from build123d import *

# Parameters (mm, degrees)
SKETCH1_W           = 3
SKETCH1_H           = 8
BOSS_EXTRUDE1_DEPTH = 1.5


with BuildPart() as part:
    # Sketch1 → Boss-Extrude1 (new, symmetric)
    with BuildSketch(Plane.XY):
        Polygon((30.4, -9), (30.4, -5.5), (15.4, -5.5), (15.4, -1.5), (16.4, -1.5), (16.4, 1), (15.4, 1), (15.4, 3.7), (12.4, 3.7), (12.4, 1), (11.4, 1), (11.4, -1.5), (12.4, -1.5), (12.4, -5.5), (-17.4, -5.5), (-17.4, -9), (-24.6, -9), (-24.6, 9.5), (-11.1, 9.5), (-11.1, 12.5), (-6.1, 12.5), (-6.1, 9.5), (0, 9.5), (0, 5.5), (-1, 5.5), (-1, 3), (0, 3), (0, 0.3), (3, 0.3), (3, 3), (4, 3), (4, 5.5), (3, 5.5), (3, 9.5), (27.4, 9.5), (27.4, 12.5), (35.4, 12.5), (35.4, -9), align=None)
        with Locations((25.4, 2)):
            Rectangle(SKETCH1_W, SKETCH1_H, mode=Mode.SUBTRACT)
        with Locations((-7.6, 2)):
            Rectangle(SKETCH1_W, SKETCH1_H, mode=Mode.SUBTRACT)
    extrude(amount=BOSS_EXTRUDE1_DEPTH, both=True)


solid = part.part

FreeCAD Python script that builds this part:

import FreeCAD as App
import Part
import Sketcher

doc = App.newDocument("Part")
body = doc.addObject("PartDesign::Body", "Body")

# Sketch on XY plane
sketch1 = body.newObject("Sketcher::SketchObject", "Sketch")
sketch1.AttachmentSupport = (doc.getObject("XY_Plane"), [""])
sketch1.MapMode = "FlatFace"
sketch1.addGeometry(Part.LineSegment(App.Vector(30.4, -5.5, 0), App.Vector(30.4, -9, 0)), False)
sketch1.addGeometry(Part.LineSegment(App.Vector(30.4, -9, 0), App.Vector(35.4, -9, 0)), False)
sketch1.addGeometry(Part.LineSegment(App.Vector(35.4, -9, 0), App.Vector(35.4, 12.5, 0)), False)
sketch1.addGeometry(Part.LineSegment(App.Vector(35.4, 12.5, 0), App.Vector(27.4, 12.5, 0)), False)
sketch1.addGeometry(Part.LineSegment(App.Vector(27.4, 12.5, 0), App.Vector(27.4, 9.5, 0)), False)
sketch1.addGeometry(Part.LineSegment(App.Vector(27.4, 9.5, 0), App.Vector(3, 9.5, 0)), False)
sketch1.addGeometry(Part.LineSegment(App.Vector(3, 9.5, 0), App.Vector(3, 5.5, 0)), False)
sketch1.addGeometry(Part.LineSegment(App.Vector(3, 5.5, 0), App.Vector(4, 5.5, 0)), False)
sketch1.addGeometry(Part.LineSegment(App.Vector(4, 5.5, 0), App.Vector(4, 3, 0)), False)
sketch1.addGeometry(Part.LineSegment(App.Vector(4, 3, 0), App.Vector(3, 3, 0)), False)
sketch1.addGeometry(Part.LineSegment(App.Vector(3, 3, 0), App.Vector(3, 0.3, 0)), False)
sketch1.addGeometry(Part.LineSegment(App.Vector(3, 0.3, 0), App.Vector(0, 0.3, 0)), False)
sketch1.addGeometry(Part.LineSegment(App.Vector(0, 0.3, 0), App.Vector(0, 3, 0)), False)
sketch1.addGeometry(Part.LineSegment(App.Vector(0, 3, 0), App.Vector(-1, 3, 0)), False)
sketch1.addGeometry(Part.LineSegment(App.Vector(-1, 3, 0), App.Vector(-1, 5.5, 0)), False)
sketch1.addGeometry(Part.LineSegment(App.Vector(-1, 5.5, 0), App.Vector(0, 5.5, 0)), False)
sketch1.addGeometry(Part.LineSegment(App.Vector(0, 5.5, 0), App.Vector(0, 9.5, 0)), False)
sketch1.addGeometry(Part.LineSegment(App.Vector(0, 9.5, 0), App.Vector(-6.1, 9.5, 0)), False)
sketch1.addGeometry(Part.LineSegment(App.Vector(-6.1, 9.5, 0), App.Vector(-6.1, 12.5, 0)), False)
sketch1.addGeometry(Part.LineSegment(App.Vector(-6.1, 12.5, 0), App.Vector(-11.1, 12.5, 0)), False)
sketch1.addGeometry(Part.LineSegment(App.Vector(-11.1, 12.5, 0), App.Vector(-11.1, 9.5, 0)), False)
sketch1.addGeometry(Part.LineSegment(App.Vector(-11.1, 9.5, 0), App.Vector(-24.6, 9.5, 0)), False)
sketch1.addGeometry(Part.LineSegment(App.Vector(-24.6, 9.5, 0), App.Vector(-24.6, -9, 0)), False)
sketch1.addGeometry(Part.LineSegment(App.Vector(-24.6, -9, 0), App.Vector(-17.4, -9, 0)), False)
sketch1.addGeometry(Part.LineSegment(App.Vector(-17.4, -9, 0), App.Vector(-17.4, -5.5, 0)), False)
sketch1.addGeometry(Part.LineSegment(App.Vector(-17.4, -5.5, 0), App.Vector(12.4, -5.5, 0)), False)
sketch1.addGeometry(Part.LineSegment(App.Vector(12.4, -5.5, 0), App.Vector(12.4, -1.5, 0)), False)
sketch1.addGeometry(Part.LineSegment(App.Vector(12.4, -1.5, 0), App.Vector(11.4, -1.5, 0)), False)
sketch1.addGeometry(Part.LineSegment(App.Vector(11.4, -1.5, 0), App.Vector(11.4, 1, 0)), False)
sketch1.addGeometry(Part.LineSegment(App.Vector(11.4, 1, 0), App.Vector(12.4, 1, 0)), False)
sketch1.addGeometry(Part.LineSegment(App.Vector(12.4, 1, 0), App.Vector(12.4, 3.7, 0)), False)
sketch1.addGeometry(Part.LineSegment(App.Vector(12.4, 3.7, 0), App.Vector(15.4, 3.7, 0)), False)
sketch1.addGeometry(Part.LineSegment(App.Vector(15.4, 3.7, 0), App.Vector(15.4, 1, 0)), False)
sketch1.addGeometry(Part.LineSegment(App.Vector(15.4, 1, 0), App.Vector(16.4, 1, 0)), False)
sketch1.addGeometry(Part.LineSegment(App.Vector(16.4, 1, 0), App.Vector(16.4, -1.5, 0)), False)
sketch1.addGeometry(Part.LineSegment(App.Vector(16.4, -1.5, 0), App.Vector(15.4, -1.5, 0)), False)
sketch1.addGeometry(Part.LineSegment(App.Vector(15.4, -1.5, 0), App.Vector(15.4, -5.5, 0)), False)
sketch1.addGeometry(Part.LineSegment(App.Vector(15.4, -5.5, 0), App.Vector(30.4, -5.5, 0)), False)
sketch1.addGeometry(Part.LineSegment(App.Vector(23.9, -2, 0), App.Vector(23.9, 6, 0)), False)
sketch1.addGeometry(Part.LineSegment(App.Vector(23.9, 6, 0), App.Vector(26.9, 6, 0)), False)
sketch1.addGeometry(Part.LineSegment(App.Vector(26.9, 6, 0), App.Vector(26.9, -2, 0)), False)
sketch1.addGeometry(Part.LineSegment(App.Vector(26.9, -2, 0), App.Vector(23.9, -2, 0)), False)
sketch1.addGeometry(Part.LineSegment(App.Vector(-9.1, -2, 0), App.Vector(-9.1, 6, 0)), False)
sketch1.addGeometry(Part.LineSegment(App.Vector(-9.1, 6, 0), App.Vector(-6.1, 6, 0)), False)
sketch1.addGeometry(Part.LineSegment(App.Vector(-6.1, 6, 0), App.Vector(-6.1, -2, 0)), False)
sketch1.addGeometry(Part.LineSegment(App.Vector(-6.1, -2, 0), App.Vector(-9.1, -2, 0)), False)
sketch1.addConstraint(Sketcher.Constraint("Coincident", 0, 2, 1, 1))
sketch1.addConstraint(Sketcher.Constraint("Coincident", 1, 2, 2, 1))
sketch1.addConstraint(Sketcher.Constraint("Coincident", 2, 2, 3, 1))
sketch1.addConstraint(Sketcher.Constraint("Coincident", 3, 2, 4, 1))
sketch1.addConstraint(Sketcher.Constraint("Coincident", 4, 2, 5, 1))
sketch1.addConstraint(Sketcher.Constraint("Coincident", 5, 2, 6, 1))
sketch1.addConstraint(Sketcher.Constraint("Coincident", 6, 2, 7, 1))
sketch1.addConstraint(Sketcher.Constraint("Coincident", 7, 2, 8, 1))
sketch1.addConstraint(Sketcher.Constraint("Coincident", 8, 2, 9, 1))
sketch1.addConstraint(Sketcher.Constraint("Coincident", 9, 2, 10, 1))
sketch1.addConstraint(Sketcher.Constraint("Coincident", 10, 2, 11, 1))
sketch1.addConstraint(Sketcher.Constraint("Coincident", 11, 2, 12, 1))
sketch1.addConstraint(Sketcher.Constraint("Coincident", 12, 2, 13, 1))
sketch1.addConstraint(Sketcher.Constraint("Coincident", 13, 2, 14, 1))
sketch1.addConstraint(Sketcher.Constraint("Coincident", 14, 2, 15, 1))
sketch1.addConstraint(Sketcher.Constraint("Coincident", 15, 2, 16, 1))
sketch1.addConstraint(Sketcher.Constraint("Coincident", 16, 2, 17, 1))
sketch1.addConstraint(Sketcher.Constraint("Coincident", 17, 2, 18, 1))
sketch1.addConstraint(Sketcher.Constraint("Coincident", 18, 2, 19, 1))
sketch1.addConstraint(Sketcher.Constraint("Coincident", 19, 2, 20, 1))
sketch1.addConstraint(Sketcher.Constraint("Coincident", 20, 2, 21, 1))
sketch1.addConstraint(Sketcher.Constraint("Coincident", 21, 2, 22, 1))
sketch1.addConstraint(Sketcher.Constraint("Coincident", 22, 2, 23, 1))
sketch1.addConstraint(Sketcher.Constraint("Coincident", 23, 2, 24, 1))
sketch1.addConstraint(Sketcher.Constraint("Coincident", 24, 2, 25, 1))
sketch1.addConstraint(Sketcher.Constraint("Coincident", 25, 2, 26, 1))
sketch1.addConstraint(Sketcher.Constraint("Coincident", 26, 2, 27, 1))
sketch1.addConstraint(Sketcher.Constraint("Coincident", 27, 2, 28, 1))
sketch1.addConstraint(Sketcher.Constraint("Coincident", 28, 2, 29, 1))
sketch1.addConstraint(Sketcher.Constraint("Coincident", 29, 2, 30, 1))
sketch1.addConstraint(Sketcher.Constraint("Coincident", 30, 2, 31, 1))
sketch1.addConstraint(Sketcher.Constraint("Coincident", 31, 2, 32, 1))
sketch1.addConstraint(Sketcher.Constraint("Coincident", 32, 2, 33, 1))
sketch1.addConstraint(Sketcher.Constraint("Coincident", 33, 2, 34, 1))
sketch1.addConstraint(Sketcher.Constraint("Coincident", 34, 2, 35, 1))
sketch1.addConstraint(Sketcher.Constraint("Coincident", 35, 2, 36, 1))
sketch1.addConstraint(Sketcher.Constraint("Coincident", 36, 2, 37, 1))
sketch1.addConstraint(Sketcher.Constraint("Coincident", 37, 2, 0, 1))
sketch1.addConstraint(Sketcher.Constraint("Coincident", 38, 2, 39, 1))
sketch1.addConstraint(Sketcher.Constraint("Coincident", 39, 2, 40, 1))
sketch1.addConstraint(Sketcher.Constraint("Coincident", 40, 2, 41, 1))
sketch1.addConstraint(Sketcher.Constraint("Coincident", 41, 2, 38, 1))
sketch1.addConstraint(Sketcher.Constraint("Coincident", 42, 2, 43, 1))
sketch1.addConstraint(Sketcher.Constraint("Coincident", 43, 2, 44, 1))
sketch1.addConstraint(Sketcher.Constraint("Coincident", 44, 2, 45, 1))
sketch1.addConstraint(Sketcher.Constraint("Coincident", 45, 2, 42, 1))
sketch1.addConstraint(Sketcher.Constraint("Vertical", 0))
sketch1.addConstraint(Sketcher.Constraint("Horizontal", 1))
sketch1.addConstraint(Sketcher.Constraint("Vertical", 2))
sketch1.addConstraint(Sketcher.Constraint("Horizontal", 3))
sketch1.addConstraint(Sketcher.Constraint("Vertical", 4))
sketch1.addConstraint(Sketcher.Constraint("Horizontal", 5))
sketch1.addConstraint(Sketcher.Constraint("Vertical", 6))
sketch1.addConstraint(Sketcher.Constraint("Horizontal", 7))
sketch1.addConstraint(Sketcher.Constraint("Vertical", 8))
sketch1.addConstraint(Sketcher.Constraint("Horizontal", 9))
sketch1.addConstraint(Sketcher.Constraint("Vertical", 10))
sketch1.addConstraint(Sketcher.Constraint("Horizontal", 11))
sketch1.addConstraint(Sketcher.Constraint("Vertical", 12))
sketch1.addConstraint(Sketcher.Constraint("Horizontal", 13))
sketch1.addConstraint(Sketcher.Constraint("Vertical", 14))
sketch1.addConstraint(Sketcher.Constraint("Horizontal", 15))
sketch1.addConstraint(Sketcher.Constraint("Vertical", 16))
sketch1.addConstraint(Sketcher.Constraint("Horizontal", 17))
sketch1.addConstraint(Sketcher.Constraint("Vertical", 18))
sketch1.addConstraint(Sketcher.Constraint("Horizontal", 19))
sketch1.addConstraint(Sketcher.Constraint("Vertical", 20))
sketch1.addConstraint(Sketcher.Constraint("Horizontal", 21))
sketch1.addConstraint(Sketcher.Constraint("Vertical", 22))
sketch1.addConstraint(Sketcher.Constraint("Horizontal", 23))
sketch1.addConstraint(Sketcher.Constraint("Vertical", 24))
sketch1.addConstraint(Sketcher.Constraint("Horizontal", 25))
sketch1.addConstraint(Sketcher.Constraint("Vertical", 26))
sketch1.addConstraint(Sketcher.Constraint("Horizontal", 27))
sketch1.addConstraint(Sketcher.Constraint("Vertical", 28))
sketch1.addConstraint(Sketcher.Constraint("Horizontal", 29))
sketch1.addConstraint(Sketcher.Constraint("Vertical", 30))
sketch1.addConstraint(Sketcher.Constraint("Horizontal", 31))
sketch1.addConstraint(Sketcher.Constraint("Vertical", 32))
sketch1.addConstraint(Sketcher.Constraint("Horizontal", 33))
sketch1.addConstraint(Sketcher.Constraint("Vertical", 34))
sketch1.addConstraint(Sketcher.Constraint("Horizontal", 35))
sketch1.addConstraint(Sketcher.Constraint("Vertical", 36))
sketch1.addConstraint(Sketcher.Constraint("Horizontal", 37))
sketch1.addConstraint(Sketcher.Constraint("Vertical", 38))
sketch1.addConstraint(Sketcher.Constraint("Horizontal", 39))
sketch1.addConstraint(Sketcher.Constraint("Vertical", 40))
sketch1.addConstraint(Sketcher.Constraint("Horizontal", 41))
sketch1.addConstraint(Sketcher.Constraint("Vertical", 42))
sketch1.addConstraint(Sketcher.Constraint("Horizontal", 43))
sketch1.addConstraint(Sketcher.Constraint("Vertical", 44))
sketch1.addConstraint(Sketcher.Constraint("Horizontal", 45))
sketch1.addConstraint(Sketcher.Constraint("PointOnObject", 11, 2, -2))
sketch1.addConstraint(Sketcher.Constraint("PointOnObject", 15, 2, -2))
sketch1.addConstraint(Sketcher.Constraint("Horizontal", 9, 2, 12, 2))
sketch1.addConstraint(Sketcher.Constraint("Horizontal", 7, 2, 14, 2))
sketch1.addConstraint(Sketcher.Constraint("Horizontal", 5, 2, 16, 2))
sketch1.addConstraint(Sketcher.Constraint("Horizontal", 3, 2, 18, 2))
sketch1.addConstraint(Sketcher.Constraint("Horizontal", 17, 2, 20, 2))
sketch1.addConstraint(Sketcher.Constraint("Horizontal", 1, 2, 22, 2))
sketch1.addConstraint(Sketcher.Constraint("Horizontal", 29, 2, 32, 2))
sketch1.addConstraint(Sketcher.Constraint("Horizontal", 27, 2, 34, 2))
sketch1.addConstraint(Sketcher.Constraint("Horizontal", 25, 2, 36, 2))
sketch1.addConstraint(Sketcher.Constraint("Horizontal", 39, 2, 42, 2))
sketch1.addConstraint(Sketcher.Constraint("Horizontal", 41, 2, 44, 2))
sketch1.addConstraint(Sketcher.Constraint("Vertical", 6, 2, 9, 2))
sketch1.addConstraint(Sketcher.Constraint("Vertical", 26, 2, 29, 2))
sketch1.addConstraint(Sketcher.Constraint("Vertical", 32, 2, 35, 2))
sketch1.addConstraint(Sketcher.Constraint("Vertical", 18, 2, 43, 2))
sketch1.addConstraint(Sketcher.Constraint("Equal", 9, 13))
sketch1.addConstraint(Sketcher.Constraint("Equal", 1, 19))
sketch1.addConstraint(Sketcher.Constraint("Equal", 15, 27))
sketch1.addConstraint(Sketcher.Constraint("Equal", 11, 31))
sketch1.addConstraint(Sketcher.Constraint("Equal", 29, 33))
sketch1.addConstraint(Sketcher.Constraint("Equal", 31, 39))
sketch1.addConstraint(Sketcher.Constraint("Equal", 41, 43))
sketch1.addConstraint(Sketcher.Constraint("Equal", 45, 4))
sketch1.addConstraint(Sketcher.Constraint("Equal", 16, 26))
sketch1.addConstraint(Sketcher.Constraint("Equal", 14, 28))
sketch1.addConstraint(Sketcher.Constraint("Equal", 12, 30))
sketch1.addConstraint(Sketcher.Constraint("Equal", 3, 38))
sketch1.addConstraint(Sketcher.Constraint("DistanceX", 1, 1, 1, 2, 5.0))
sketch1.addConstraint(Sketcher.Constraint("DistanceX", 3, 2, 3, 1, 8.0))
sketch1.addConstraint(Sketcher.Constraint("DistanceX", 7, 1, 7, 2, 1.0))
sketch1.addConstraint(Sketcher.Constraint("DistanceX", 11, 2, 11, 1, 3.0))
sketch1.addConstraint(Sketcher.Constraint("DistanceX", 37, 1, 37, 2, 15.0))
sketch1.addConstraint(Sketcher.Constraint("DistanceY", 6, 2, 6, 1, 4.0))
sketch1.addConstraint(Sketcher.Constraint("DistanceX", 5, 2, 5, 1, 24.4))
sketch1.addConstraint(Sketcher.Constraint("DistanceX", 17, 2, 17, 1, 6.1))
sketch1.addConstraint(Sketcher.Constraint("DistanceX", 21, 2, 21, 1, 13.5))
sketch1.addConstraint(Sketcher.Constraint("DistanceX", 23, 1, 23, 2, 7.2))
sketch1.addConstraint(Sketcher.Constraint("DistanceY", 0, 2, 0, 1, 3.5))
sketch1.addConstraint(Sketcher.Constraint("DistanceY", 2, 1, 2, 2, 21.5))
sketch1.addConstraint(Sketcher.Constraint("DistanceY", 8, 2, 8, 1, 2.5))
sketch1.addConstraint(Sketcher.Constraint("DistanceY", 10, 2, 10, 1, 2.7))
sketch1.addConstraint(Sketcher.Constraint("DistanceY", 0, 2, -1, 1, 9.0))
sketch1.addConstraint(Sketcher.Constraint("DistanceY", -1, 1, 38, 2, 6.0))
sketch1.addConstraint(Sketcher.Constraint("DistanceX", -1, 1, 38, 2, 23.9))
pad1 = body.newObject("PartDesign::Pad", "Pad")
pad1.Profile = sketch1
pad1.Length = 3
pad1.Midplane = True

doc.recompute()
